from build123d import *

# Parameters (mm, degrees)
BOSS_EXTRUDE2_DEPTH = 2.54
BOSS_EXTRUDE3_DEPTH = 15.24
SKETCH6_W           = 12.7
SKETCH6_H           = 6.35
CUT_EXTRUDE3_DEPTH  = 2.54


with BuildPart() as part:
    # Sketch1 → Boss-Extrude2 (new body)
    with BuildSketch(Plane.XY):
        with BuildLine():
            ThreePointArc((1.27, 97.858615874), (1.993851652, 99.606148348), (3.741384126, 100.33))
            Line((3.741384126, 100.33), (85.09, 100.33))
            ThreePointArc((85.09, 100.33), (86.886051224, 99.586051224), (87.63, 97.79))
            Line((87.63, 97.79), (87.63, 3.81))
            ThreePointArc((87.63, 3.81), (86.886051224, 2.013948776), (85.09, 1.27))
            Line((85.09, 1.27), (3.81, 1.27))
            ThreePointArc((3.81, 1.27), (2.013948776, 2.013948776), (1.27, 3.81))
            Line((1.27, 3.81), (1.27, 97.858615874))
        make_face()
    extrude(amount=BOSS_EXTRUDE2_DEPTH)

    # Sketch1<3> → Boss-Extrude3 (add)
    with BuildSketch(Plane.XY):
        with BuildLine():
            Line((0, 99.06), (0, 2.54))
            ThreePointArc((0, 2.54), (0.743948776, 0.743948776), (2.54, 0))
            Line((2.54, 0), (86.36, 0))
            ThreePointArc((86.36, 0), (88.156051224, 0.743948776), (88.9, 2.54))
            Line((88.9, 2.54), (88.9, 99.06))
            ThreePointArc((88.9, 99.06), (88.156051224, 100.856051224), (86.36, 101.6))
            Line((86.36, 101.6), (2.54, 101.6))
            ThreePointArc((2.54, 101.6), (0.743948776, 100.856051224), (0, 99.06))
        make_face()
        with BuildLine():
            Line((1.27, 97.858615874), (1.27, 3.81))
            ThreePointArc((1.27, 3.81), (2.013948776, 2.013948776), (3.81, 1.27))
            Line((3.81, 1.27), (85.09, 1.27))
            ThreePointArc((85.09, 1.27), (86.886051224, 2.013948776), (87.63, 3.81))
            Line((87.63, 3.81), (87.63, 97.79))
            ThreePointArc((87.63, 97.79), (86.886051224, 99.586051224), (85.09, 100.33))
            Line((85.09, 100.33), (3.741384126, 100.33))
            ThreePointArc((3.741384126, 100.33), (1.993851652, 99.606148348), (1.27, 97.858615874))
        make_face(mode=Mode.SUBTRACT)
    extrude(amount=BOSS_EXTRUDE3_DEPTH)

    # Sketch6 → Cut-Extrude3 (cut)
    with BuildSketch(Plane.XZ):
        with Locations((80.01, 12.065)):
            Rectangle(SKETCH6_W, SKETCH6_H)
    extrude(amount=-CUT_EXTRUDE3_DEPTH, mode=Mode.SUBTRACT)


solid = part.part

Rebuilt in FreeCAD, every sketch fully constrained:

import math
import FreeCAD as App
import Part
import Sketcher
from FreeCAD import Vector
Q = App.Units.Quantity


def add_polygon(sketch, points):
    """Adds a closed chain of lines whose ends are joined by coincident constraints."""
    first, n = sketch.GeometryCount, len(points)
    for a, b in zip(points, points[1:] + points[:1]):
        sketch.addGeometry(Part.LineSegment(App.Vector(*a, 0), App.Vector(*b, 0)), False)
    for i in range(n):
        sketch.addConstraint(Sketcher.Constraint("Coincident", first + i, 2, first + (i + 1) % n, 1))

doc = App.newDocument("Part")
params = doc.addObject("Spreadsheet::Sheet", "Params")
for row, (alias, value) in enumerate([
    ("sketch1_radius", "0.1 in"),
    ("sketch1_width", "3.2 in"),
    ("sketch1_height", "3.7 in"),
    ("pad1_length", "0.1 in"),
    ("sketch2_radius", "0.1 in"),
    ("sketch2_width", "3.3 in"),
    ("sketch2_width2", "3.2 in"),
    ("sketch2_height", "3.8 in"),
    ("sketch2_height2", "3.7 in"),
    ("pad2_length", "0.6 in"),
    ("sketch3_width", "0.5 in"),
    ("sketch3_height", "0.25 in"),
    ("pocket1_length", "0.1 in"),
], start=1):
    params.set(f"A{row}", alias)
    params.set(f"B{row}", "=" + value)
    params.setAlias(f"B{row}", alias)

body = doc.addObject("PartDesign::Body", "Body")

sketch1 = doc.addObject("Sketcher::SketchObject", "Sketch")
body.addObject(sketch1)
sketch1.AttachmentSupport = (doc.XY_Plane, [""])
sketch1.MapMode = "FlatFace"
sketch1.addGeometry(Part.ArcOfCircle(Part.Circle(Vector(3.7, 97.9, 0), Vector(0, 0, 1), 2.5), math.radians(90), math.radians(180)), False)
sketch1.addGeometry(Part.LineSegment(Vector(1.3, 97.9, 0), Vector(1.3, 3.8, 0)), False)
sketch1.addGeometry(Part.ArcOfCircle(Part.Circle(Vector(3.8, 3.8, 0), Vector(0, 0, 1), 2.5), math.radians(-180), math.radians(-90)), False)
sketch1.addGeometry(Part.LineSegment(Vector(3.8, 1.3, 0), Vector(85.1, 1.3, 0)), False)
sketch1.addGeometry(Part.ArcOfCircle(Part.Circle(Vector(85.1, 3.8, 0), Vector(0, 0, 1), 2.5), math.radians(-90), math.radians(0)), False)
sketch1.addGeometry(Part.LineSegment(Vector(87.6, 3.8, 0), Vector(87.6, 97.8, 0)), False)
sketch1.addGeometry(Part.ArcOfCircle(Part.Circle(Vector(85.1, 97.8, 0), Vector(0, 0, 1), 2.5), math.radians(0), math.radians(90)), False)
sketch1.addGeometry(Part.LineSegment(Vector(85.1, 100.3, 0), Vector(3.7, 100.3, 0)), False)
sketch1.addConstraint(Sketcher.Constraint("Tangent", 0, 2, 1, 1))
sketch1.addConstraint(Sketcher.Constraint("Tangent", 1, 2, 2, 1))
sketch1.addConstraint(Sketcher.Constraint("Tangent", 2, 2, 3, 1))
sketch1.addConstraint(Sketcher.Constraint("Tangent", 3, 2, 4, 1))
sketch1.addConstraint(Sketcher.Constraint("Tangent", 4, 2, 5, 1))
sketch1.addConstraint(Sketcher.Constraint("Tangent", 5, 2, 6, 1))
sketch1.addConstraint(Sketcher.Constraint("Tangent", 6, 2, 7, 1))
sketch1.addConstraint(Sketcher.Constraint("Tangent", 7, 2, 0, 1))
sketch1.addConstraint(Sketcher.Constraint("Vertical", 1))
sketch1.addConstraint(Sketcher.Constraint("Horizontal", 3))
sketch1.addConstraint(Sketcher.Constraint("Vertical", 5))
sketch1.addConstraint(Sketcher.Constraint("Horizontal", 7))
sketch1.addConstraint(Sketcher.Constraint("Equal", 2, 4))
sketch1.addConstraint(Sketcher.Constraint("Equal", 4, 6))
sketch1.addConstraint(Sketcher.Constraint("Radius", 2, Q("0.1 in")))
sketch1.addConstraint(Sketcher.Constraint("DistanceX", 3, 1, 3, 2, Q("3.2 in")))
sketch1.addConstraint(Sketcher.Constraint("DistanceY", 5, 1, 5, 2, Q("3.7 in")))
sketch1.addConstraint(Sketcher.Constraint("DistanceX", -1, 1, 2, 3, Q("0.15 in")))
sketch1.addConstraint(Sketcher.Constraint("DistanceY", -1, 1, 2, 3, Q("0.15 in")))
sketch1.addConstraint(Sketcher.Constraint("Radius", 0, 2.471384))
sketch1.setExpression("Constraints[14]", "Params.sketch1_radius")
sketch1.setExpression("Constraints[15]", "Params.sketch1_width")
sketch1.setExpression("Constraints[16]", "Params.sketch1_height")
pad1 = doc.addObject("PartDesign::Pad", "Pad")
body.addObject(pad1)
pad1.Profile = sketch1
pad1.setExpression("Length", "Params.pad1_length")

sketch2 = doc.addObject("Sketcher::SketchObject", "Sketch001")
body.addObject(sketch2)
sketch2.AttachmentSupport = (doc.XY_Plane, [""])
sketch2.MapMode = "FlatFace"
sketch2.addGeometry(Part.LineSegment(Vector(0, 99.1, 0), Vector(0, 2.5, 0)), False)
sketch2.addGeometry(Part.ArcOfCircle(Part.Circle(Vector(2.5, 2.5, 0), Vector(0, 0, 1), 2.5), math.radians(-180), math.radians(-90)), False)
sketch2.addGeometry(Part.LineSegment(Vector(2.5, 0, 0), Vector(86.4, 0, 0)), False)
sketch2.addGeometry(Part.ArcOfCircle(Part.Circle(Vector(86.4, 2.5, 0), Vector(0, 0, 1), 2.5), math.radians(-90), math.radians(0)), False)
sketch2.addGeometry(Part.LineSegment(Vector(88.9, 2.5, 0), Vector(88.9, 99.1, 0)), False)
sketch2.addGeometry(Part.ArcOfCircle(Part.Circle(Vector(86.4, 99.1, 0), Vector(0, 0, 1), 2.5), math.radians(0), math.radians(90)), False)
sketch2.addGeometry(Part.LineSegment(Vector(86.4, 101.6, 0), Vector(2.5, 101.6, 0)), False)
sketch2.addGeometry(Part.ArcOfCircle(Part.Circle(Vector(2.5, 99.1, 0), Vector(0, 0, 1), 2.5), math.radians(90), math.radians(180)), False)
sketch2.addGeometry(Part.LineSegment(Vector(1.3, 3.8, 0), Vector(1.3, 97.9, 0)), False)
sketch2.addGeometry(Part.ArcOfCircle(Part.Circle(Vector(3.7, 97.9, 0), Vector(0, 0, 1), 2.5), math.radians(90), math.radians(180)), False)
sketch2.addGeometry(Part.LineSegment(Vector(3.7, 100.3, 0), Vector(85.1, 100.3, 0)), False)
sketch2.addGeometry(Part.ArcOfCircle(Part.Circle(Vector(85.1, 97.8, 0), Vector(0, 0, 1), 2.5), math.radians(0), math.radians(90)), False)
sketch2.addGeometry(Part.LineSegment(Vector(87.6, 97.8, 0), Vector(87.6, 3.8, 0)), False)
sketch2.addGeometry(Part.ArcOfCircle(Part.Circle(Vector(85.1, 3.8, 0), Vector(0, 0, 1), 2.5), math.radians(-90), math.radians(0)), False)
sketch2.addGeometry(Part.LineSegment(Vector(85.1, 1.3, 0), Vector(3.8, 1.3, 0)), False)
sketch2.addGeometry(Part.ArcOfCircle(Part.Circle(Vector(3.8, 3.8, 0), Vector(0, 0, 1), 2.5), math.radians(-180), math.radians(-90)), False)
sketch2.addConstraint(Sketcher.Constraint("Tangent", 0, 2, 1, 1))
sketch2.addConstraint(Sketcher.Constraint("Tangent", 1, 2, 2, 1))
sketch2.addConstraint(Sketcher.Constraint("Tangent", 2, 2, 3, 1))
sketch2.addConstraint(Sketcher.Constraint("Tangent", 3, 2, 4, 1))
sketch2.addConstraint(Sketcher.Constraint("Tangent", 4, 2, 5, 1))
sketch2.addConstraint(Sketcher.Constraint("Tangent", 5, 2, 6, 1))
sketch2.addConstraint(Sketcher.Constraint("Tangent", 6, 2, 7, 1))
sketch2.addConstraint(Sketcher.Constraint("Tangent", 7, 2, 0, 1))
sketch2.addConstraint(Sketcher.Constraint("Tangent", 8, 2, 9, 2))
sketch2.addConstraint(Sketcher.Constraint("Tangent", 9, 1, 10, 1))
sketch2.addConstraint(Sketcher.Constraint("Tangent", 10, 2, 11, 2))
sketch2.addConstraint(Sketcher.Constraint("Tangent", 11, 1, 12, 1))
sketch2.addConstraint(Sketcher.Constraint("Tangent", 12, 2, 13, 2))
sketch2.addConstraint(Sketcher.Constraint("Tangent", 13, 1, 14, 1))
sketch2.addConstraint(Sketcher.Constraint("Tangent", 14, 2, 15, 2))
sketch2.addConstraint(Sketcher.Constraint("Tangent", 15, 1, 8, 1))
sketch2.addConstraint(Sketcher.Constraint("Vertical", 0))
sketch2.addConstraint(Sketcher.Constraint("Horizontal", 2))
sketch2.addConstraint(Sketcher.Constraint("Vertical", 4))
sketch2.addConstraint(Sketcher.Constraint("Horizontal", 6))
sketch2.addConstraint(Sketcher.Constraint("Vertical", 8))
sketch2.addConstraint(Sketcher.Constraint("Horizontal", 10))
sketch2.addConstraint(Sketcher.Constraint("Vertical", 12))
sketch2.addConstraint(Sketcher.Constraint("Horizontal", 14))
sketch2.addConstraint(Sketcher.Constraint("Equal", 1, 3))
sketch2.addConstraint(Sketcher.Constraint("Equal", 3, 5))
sketch2.addConstraint(Sketcher.Constraint("Equal", 5, 7))
sketch2.addConstraint(Sketcher.Constraint("Equal", 7, 11))
sketch2.addConstraint(Sketcher.Constraint("Equal", 11, 13))
sketch2.addConstraint(Sketcher.Constraint("Equal", 13, 15))
sketch2.addConstraint(Sketcher.Constraint("PointOnObject", 0, 2, -2))
sketch2.addConstraint(Sketcher.Constraint("PointOnObject", 1, 2, -1))
sketch2.addConstraint(Sketcher.Constraint("Radius", 1, Q("0.1 in")))
sketch2.addConstraint(Sketcher.Constraint("DistanceX", 2, 1, 2, 2, Q("3.3 in")))
sketch2.addConstraint(Sketcher.Constraint("DistanceX", 14, 2, 14, 1, Q("3.2 in")))
sketch2.addConstraint(Sketcher.Constraint("DistanceY", 0, 2, 0, 1, Q("3.8 in")))
sketch2.addConstraint(Sketcher.Constraint("DistanceY", 12, 2, 12, 1, Q("3.7 in")))
sketch2.addConstraint(Sketcher.Constraint("DistanceX", -1, 1, 11, 3, Q("3.35 in")))
sketch2.addConstraint(Sketcher.Constraint("DistanceY", -1, 1, 11, 3, Q("3.85 in")))
sketch2.addConstraint(Sketcher.Constraint("Radius", 9, 2.471384))
sketch2.setExpression("Constraints[32]", "Params.sketch2_radius")
sketch2.setExpression("Constraints[33]", "Params.sketch2_width")
sketch2.setExpression("Constraints[34]", "Params.sketch2_width2")
sketch2.setExpression("Constraints[35]", "Params.sketch2_height")
sketch2.setExpression("Constraints[36]", "Params.sketch2_height2")
pad2 = doc.addObject("PartDesign::Pad", "Pad001")
body.addObject(pad2)
pad2.Profile = sketch2
pad2.setExpression("Length", "Params.pad2_length")

sketch3 = doc.addObject("Sketcher::SketchObject", "Sketch002")
body.addObject(sketch3)
sketch3.AttachmentSupport = (doc.XZ_Plane, [""])
sketch3.MapMode = "FlatFace"
add_polygon(sketch3, [(74, 15), (74, 9), (86, 9), (86, 15)])
sketch3.addConstraint(Sketcher.Constraint("Vertical", 0))
sketch3.addConstraint(Sketcher.Constraint("Horizontal", 1))
sketch3.addConstraint(Sketcher.Constraint("Vertical", 2))
sketch3.addConstraint(Sketcher.Constraint("Horizontal", 3))
sketch3.addConstraint(Sketcher.Constraint("DistanceX", 1, 1, 1, 2, Q("0.5 in")))
sketch3.addConstraint(Sketcher.Constraint("DistanceY", 0, 2, 0, 1, Q("0.25 in")))
sketch3.addConstraint(Sketcher.Constraint("DistanceX", -1, 1, 0, 2, Q("2.9 in")))
sketch3.addConstraint(Sketcher.Constraint("DistanceY", -1, 1, 2, 2, Q("0.6 in")))
sketch3.setExpression("Constraints[8]", "Params.sketch3_width")
sketch3.setExpression("Constraints[9]", "Params.sketch3_height")
pocket1 = doc.addObject("PartDesign::Pocket", "Pocket")
body.addObject(pocket1)
pocket1.Profile = sketch3
pocket1.setExpression("Length", "Params.pocket1_length")

doc.recompute()
